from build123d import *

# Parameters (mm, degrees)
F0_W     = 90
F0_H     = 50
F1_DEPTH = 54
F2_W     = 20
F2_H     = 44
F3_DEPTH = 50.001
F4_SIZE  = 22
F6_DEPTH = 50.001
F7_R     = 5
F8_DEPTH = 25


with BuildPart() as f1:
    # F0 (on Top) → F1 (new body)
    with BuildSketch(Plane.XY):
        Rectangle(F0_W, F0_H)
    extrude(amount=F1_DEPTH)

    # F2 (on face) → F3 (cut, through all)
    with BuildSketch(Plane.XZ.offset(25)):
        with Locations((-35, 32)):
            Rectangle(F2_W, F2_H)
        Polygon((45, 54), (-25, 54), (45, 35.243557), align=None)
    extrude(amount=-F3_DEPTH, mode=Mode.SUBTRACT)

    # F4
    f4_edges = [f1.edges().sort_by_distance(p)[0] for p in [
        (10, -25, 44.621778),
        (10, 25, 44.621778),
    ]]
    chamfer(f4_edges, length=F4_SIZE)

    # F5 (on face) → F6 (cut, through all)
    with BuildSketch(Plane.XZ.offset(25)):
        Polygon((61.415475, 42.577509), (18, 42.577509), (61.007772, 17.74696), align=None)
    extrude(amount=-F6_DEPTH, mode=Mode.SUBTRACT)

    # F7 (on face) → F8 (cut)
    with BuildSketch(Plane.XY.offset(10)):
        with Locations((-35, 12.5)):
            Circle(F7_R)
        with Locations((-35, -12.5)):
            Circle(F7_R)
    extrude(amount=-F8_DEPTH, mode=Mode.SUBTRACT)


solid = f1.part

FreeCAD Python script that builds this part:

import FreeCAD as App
import Part
import Sketcher

V = App.Vector
Q = App.Units.Quantity


def edges_at(feature, points):
    """Names of the edges that pass closest to the given points."""
    edges = feature.Shape.Edges
    near = lambda p: min(range(len(edges)), key=lambda i: edges[i].distToShape(Part.Vertex(*p))[0])
    return sorted({f"Edge{near(p) + 1}" for p in points})

doc = App.newDocument("Part")
body = doc.addObject("PartDesign::Body", "Body")

sketch1 = body.newObject("Sketcher::SketchObject", "Sketch")
sketch1.AttachmentSupport = (doc.getObject("XY_Plane"), [""])
sketch1.MapMode = "FlatFace"
sketch1.addGeometry([
    Part.LineSegment(V(-45, 25, 0), V(-45, -25, 0)),
    Part.LineSegment(V(-45, -25, 0), V(45, -25, 0)),
    Part.LineSegment(V(45, -25, 0), V(45, 25, 0)),
    Part.LineSegment(V(45, 25, 0), V(-45, 25, 0)),
], False)
sketch1.addConstraint([
    Sketcher.Constraint("Coincident", 0, 2, 1, 1),
    Sketcher.Constraint("Coincident", 1, 2, 2, 1),
    Sketcher.Constraint("Coincident", 2, 2, 3, 1),
    Sketcher.Constraint("Coincident", 3, 2, 0, 1),
    Sketcher.Constraint("Vertical", 0),
    Sketcher.Constraint("Horizontal", 1),
    Sketcher.Constraint("Vertical", 2),
    Sketcher.Constraint("Horizontal", 3),
    Sketcher.Constraint("Symmetric", 0, 2, 2, 2, -1, 1),
    Sketcher.Constraint("DistanceX", 1, 1, 1, 2, Q("90 mm")),
    Sketcher.Constraint("DistanceY", 0, 2, 0, 1, Q("50 mm")),
])
pad1 = body.newObject("PartDesign::Pad", "Pad")
pad1.Profile = sketch1
pad1.Length = 54

sketch2 = body.newObject("Sketcher::SketchObject", "Sketch001")
sketch2.AttachmentSupport = (doc.getObject("XZ_Plane"), [""])
sketch2.MapMode = "FlatFace"
sketch2.AttachmentOffset = App.Placement(V(0, 0, 25), App.Rotation())
sketch2.addGeometry([
    Part.LineSegment(V(-45, 54, 0), V(-45, 10, 0)),
    Part.LineSegment(V(-45, 10, 0), V(-25, 10, 0)),
    Part.LineSegment(V(-25, 10, 0), V(-25, 54, 0)),
    Part.LineSegment(V(-25, 54, 0), V(-45, 54, 0)),
    Part.LineSegment(V(45, 54, 0), V(-25, 54, 0)),
    Part.LineSegment(V(-25, 54, 0), V(45, 35, 0)),
    Part.LineSegment(V(45, 35, 0), V(45, 54, 0)),
], False)
sketch2.addConstraint([
    Sketcher.Constraint("Coincident", 0, 2, 1, 1),
    Sketcher.Constraint("Coincident", 1, 2, 2, 1),
    Sketcher.Constraint("Coincident", 2, 2, 3, 1),
    Sketcher.Constraint("Coincident", 3, 2, 0, 1),
    Sketcher.Constraint("Coincident", 4, 2, 5, 1),
    Sketcher.Constraint("Coincident", 5, 2, 6, 1),
    Sketcher.Constraint("Coincident", 6, 2, 4, 1),
    Sketcher.Constraint("Vertical", 0),
    Sketcher.Constraint("Horizontal", 1),
    Sketcher.Constraint("Vertical", 2),
    Sketcher.Constraint("Horizontal", 3),
    Sketcher.Constraint("Horizontal", 4),
    Sketcher.Constraint("Vertical", 6),
    Sketcher.Constraint("Coincident", 4, 2, 2, 2),
    Sketcher.Constraint("DistanceX", 1, 1, 1, 2, Q("20 mm")),
    Sketcher.Constraint("DistanceX", 4, 2, 4, 1, Q("70 mm")),
    Sketcher.Constraint("DistanceY", 0, 2, 0, 1, Q("44 mm")),
    Sketcher.Constraint("Angle", 5, Q("-15 deg")),
    Sketcher.Constraint("DistanceX", 0, 2, -1, 1, Q("45 mm")),
    Sketcher.Constraint("DistanceY", -1, 1, 0, 2, Q("10 mm")),
])
pocket1 = body.newObject("PartDesign::Pocket", "Pocket")
pocket1.Profile = sketch2
pocket1.Type = "ThroughAll"
doc.recompute()

chamfer = body.newObject("PartDesign::Chamfer", "Chamfer")
chamfer.Base = (pocket1, edges_at(pocket1, [(10, -25, 44.622), (10, 25, 44.622)]))
chamfer.Size = 22

sketch3 = body.newObject("Sketcher::SketchObject", "Sketch002")
sketch3.AttachmentSupport = (doc.getObject("XZ_Plane"), [""])
sketch3.MapMode = "FlatFace"
sketch3.AttachmentOffset = App.Placement(V(0, 0, 25), App.Rotation())
sketch3.addGeometry([
    Part.LineSegment(V(61, 43, 0), V(18, 43, 0)),
    Part.LineSegment(V(18, 43, 0), V(61, 18, 0)),
    Part.LineSegment(V(61, 18, 0), V(61, 43, 0)),
], False)
sketch3.addConstraint([
    Sketcher.Constraint("Coincident", 0, 2, 1, 1),
    Sketcher.Constraint("Coincident", 1, 2, 2, 1),
    Sketcher.Constraint("Coincident", 2, 2, 0, 1),
    Sketcher.Constraint("Horizontal", 0),
    Sketcher.Constraint("Angle", 1, Q("-30 deg")),
    Sketcher.Constraint("DistanceX", -1, 1, 0, 2, Q("18 mm")),
    Sketcher.Constraint("DistanceX", 0, 2, 0, 1, Q("43.415475 mm")),
    Sketcher.Constraint("DistanceY", -1, 1, 0, 2, Q("42.577509 mm")),
    Sketcher.Constraint("DistanceY", -1, 1, 1, 2, Q("17.74696 mm")),
])
pocket2 = body.newObject("PartDesign::Pocket", "Pocket001")
pocket2.Profile = sketch3
pocket2.Type = "ThroughAll"

sketch4 = body.newObject("Sketcher::SketchObject", "Sketch003")
sketch4.AttachmentSupport = (doc.getObject("XY_Plane"), [""])
sketch4.MapMode = "FlatFace"
sketch4.AttachmentOffset = App.Placement(V(0, 0, 10), App.Rotation())
sketch4.addGeometry([
    Part.Circle(V(-35, 12, 0), V(0, 0, 1), 5),
    Part.Circle(V(-35, -12, 0), V(0, 0, 1), 5),
], False)
sketch4.addConstraint([
    Sketcher.Constraint("Equal", 0, 1),
    Sketcher.Constraint("Symmetric", 0, 3, 1, 3, -1),
    Sketcher.Constraint("Diameter", 0, Q("10 mm")),
    Sketcher.Constraint("DistanceX", 0, 3, -1, 1, Q("35 mm")),
    Sketcher.Constraint("DistanceY", 1, 3, 0, 3, Q("25 mm")),
])
pocket3 = body.newObject("PartDesign::Pocket", "Pocket002")
pocket3.Profile = sketch4
pocket3.Length = 25

doc.recompute()
